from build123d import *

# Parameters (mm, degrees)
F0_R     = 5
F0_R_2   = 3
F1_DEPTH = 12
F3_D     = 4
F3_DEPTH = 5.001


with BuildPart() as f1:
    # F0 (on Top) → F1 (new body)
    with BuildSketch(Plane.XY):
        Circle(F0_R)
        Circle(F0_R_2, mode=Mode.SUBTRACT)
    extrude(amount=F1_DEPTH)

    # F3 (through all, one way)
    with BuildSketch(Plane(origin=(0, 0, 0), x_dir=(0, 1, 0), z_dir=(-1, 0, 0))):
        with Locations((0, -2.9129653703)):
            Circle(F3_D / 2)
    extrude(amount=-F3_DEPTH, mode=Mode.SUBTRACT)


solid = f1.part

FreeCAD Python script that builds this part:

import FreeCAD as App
import Part
import Sketcher
from FreeCAD import Vector

doc = App.newDocument("Part")
body = doc.addObject("PartDesign::Body", "Body")

# Sketch on XY plane
sketch1 = body.newObject("Sketcher::SketchObject", "Sketch")
sketch1.AttachmentSupport = (doc.getObject("XY_Plane"), [""])
sketch1.MapMode = "FlatFace"
sketch1.addGeometry(Part.Circle(Vector(0, 0, 0), Vector(0, 0, 1), 5), False)
sketch1.addGeometry(Part.Circle(Vector(0, 0, 0), Vector(0, 0, 1), 3), False)
sketch1.addConstraint(Sketcher.Constraint("Coincident", 0, 3, -1, 1))
sketch1.addConstraint(Sketcher.Constraint("Coincident", 1, 3, -1, 1))
sketch1.addConstraint(Sketcher.Constraint("Diameter", 0, 10.0))
sketch1.addConstraint(Sketcher.Constraint("Diameter", 1, 6.0))
pad1 = body.newObject("PartDesign::Pad", "Pad")
pad1.Profile = sketch1
pad1.Length = 12

# Sketch on YZ plane
sketch2 = body.newObject("Sketcher::SketchObject", "Sketch001")
sketch2.AttachmentSupport = (doc.getObject("YZ_Plane"), [""])
sketch2.MapMode = "FlatFace"
sketch2.addGeometry(Part.Circle(Vector(0, 2.9, 0), Vector(0, 0, 1), 2), False)
sketch2.addConstraint(Sketcher.Constraint("PointOnObject", 0, 3, -2))
sketch2.addConstraint(Sketcher.Constraint("Diameter", 0, 4.0))
sketch2.addConstraint(Sketcher.Constraint("DistanceY", -1, 1, 0, 3, 2.912965))
pocket1 = body.newObject("PartDesign::Pocket", "Pocket")
pocket1.Profile = sketch2
pocket1.Type = "ThroughAll"
pocket1.Reversed = True

doc.recompute()
